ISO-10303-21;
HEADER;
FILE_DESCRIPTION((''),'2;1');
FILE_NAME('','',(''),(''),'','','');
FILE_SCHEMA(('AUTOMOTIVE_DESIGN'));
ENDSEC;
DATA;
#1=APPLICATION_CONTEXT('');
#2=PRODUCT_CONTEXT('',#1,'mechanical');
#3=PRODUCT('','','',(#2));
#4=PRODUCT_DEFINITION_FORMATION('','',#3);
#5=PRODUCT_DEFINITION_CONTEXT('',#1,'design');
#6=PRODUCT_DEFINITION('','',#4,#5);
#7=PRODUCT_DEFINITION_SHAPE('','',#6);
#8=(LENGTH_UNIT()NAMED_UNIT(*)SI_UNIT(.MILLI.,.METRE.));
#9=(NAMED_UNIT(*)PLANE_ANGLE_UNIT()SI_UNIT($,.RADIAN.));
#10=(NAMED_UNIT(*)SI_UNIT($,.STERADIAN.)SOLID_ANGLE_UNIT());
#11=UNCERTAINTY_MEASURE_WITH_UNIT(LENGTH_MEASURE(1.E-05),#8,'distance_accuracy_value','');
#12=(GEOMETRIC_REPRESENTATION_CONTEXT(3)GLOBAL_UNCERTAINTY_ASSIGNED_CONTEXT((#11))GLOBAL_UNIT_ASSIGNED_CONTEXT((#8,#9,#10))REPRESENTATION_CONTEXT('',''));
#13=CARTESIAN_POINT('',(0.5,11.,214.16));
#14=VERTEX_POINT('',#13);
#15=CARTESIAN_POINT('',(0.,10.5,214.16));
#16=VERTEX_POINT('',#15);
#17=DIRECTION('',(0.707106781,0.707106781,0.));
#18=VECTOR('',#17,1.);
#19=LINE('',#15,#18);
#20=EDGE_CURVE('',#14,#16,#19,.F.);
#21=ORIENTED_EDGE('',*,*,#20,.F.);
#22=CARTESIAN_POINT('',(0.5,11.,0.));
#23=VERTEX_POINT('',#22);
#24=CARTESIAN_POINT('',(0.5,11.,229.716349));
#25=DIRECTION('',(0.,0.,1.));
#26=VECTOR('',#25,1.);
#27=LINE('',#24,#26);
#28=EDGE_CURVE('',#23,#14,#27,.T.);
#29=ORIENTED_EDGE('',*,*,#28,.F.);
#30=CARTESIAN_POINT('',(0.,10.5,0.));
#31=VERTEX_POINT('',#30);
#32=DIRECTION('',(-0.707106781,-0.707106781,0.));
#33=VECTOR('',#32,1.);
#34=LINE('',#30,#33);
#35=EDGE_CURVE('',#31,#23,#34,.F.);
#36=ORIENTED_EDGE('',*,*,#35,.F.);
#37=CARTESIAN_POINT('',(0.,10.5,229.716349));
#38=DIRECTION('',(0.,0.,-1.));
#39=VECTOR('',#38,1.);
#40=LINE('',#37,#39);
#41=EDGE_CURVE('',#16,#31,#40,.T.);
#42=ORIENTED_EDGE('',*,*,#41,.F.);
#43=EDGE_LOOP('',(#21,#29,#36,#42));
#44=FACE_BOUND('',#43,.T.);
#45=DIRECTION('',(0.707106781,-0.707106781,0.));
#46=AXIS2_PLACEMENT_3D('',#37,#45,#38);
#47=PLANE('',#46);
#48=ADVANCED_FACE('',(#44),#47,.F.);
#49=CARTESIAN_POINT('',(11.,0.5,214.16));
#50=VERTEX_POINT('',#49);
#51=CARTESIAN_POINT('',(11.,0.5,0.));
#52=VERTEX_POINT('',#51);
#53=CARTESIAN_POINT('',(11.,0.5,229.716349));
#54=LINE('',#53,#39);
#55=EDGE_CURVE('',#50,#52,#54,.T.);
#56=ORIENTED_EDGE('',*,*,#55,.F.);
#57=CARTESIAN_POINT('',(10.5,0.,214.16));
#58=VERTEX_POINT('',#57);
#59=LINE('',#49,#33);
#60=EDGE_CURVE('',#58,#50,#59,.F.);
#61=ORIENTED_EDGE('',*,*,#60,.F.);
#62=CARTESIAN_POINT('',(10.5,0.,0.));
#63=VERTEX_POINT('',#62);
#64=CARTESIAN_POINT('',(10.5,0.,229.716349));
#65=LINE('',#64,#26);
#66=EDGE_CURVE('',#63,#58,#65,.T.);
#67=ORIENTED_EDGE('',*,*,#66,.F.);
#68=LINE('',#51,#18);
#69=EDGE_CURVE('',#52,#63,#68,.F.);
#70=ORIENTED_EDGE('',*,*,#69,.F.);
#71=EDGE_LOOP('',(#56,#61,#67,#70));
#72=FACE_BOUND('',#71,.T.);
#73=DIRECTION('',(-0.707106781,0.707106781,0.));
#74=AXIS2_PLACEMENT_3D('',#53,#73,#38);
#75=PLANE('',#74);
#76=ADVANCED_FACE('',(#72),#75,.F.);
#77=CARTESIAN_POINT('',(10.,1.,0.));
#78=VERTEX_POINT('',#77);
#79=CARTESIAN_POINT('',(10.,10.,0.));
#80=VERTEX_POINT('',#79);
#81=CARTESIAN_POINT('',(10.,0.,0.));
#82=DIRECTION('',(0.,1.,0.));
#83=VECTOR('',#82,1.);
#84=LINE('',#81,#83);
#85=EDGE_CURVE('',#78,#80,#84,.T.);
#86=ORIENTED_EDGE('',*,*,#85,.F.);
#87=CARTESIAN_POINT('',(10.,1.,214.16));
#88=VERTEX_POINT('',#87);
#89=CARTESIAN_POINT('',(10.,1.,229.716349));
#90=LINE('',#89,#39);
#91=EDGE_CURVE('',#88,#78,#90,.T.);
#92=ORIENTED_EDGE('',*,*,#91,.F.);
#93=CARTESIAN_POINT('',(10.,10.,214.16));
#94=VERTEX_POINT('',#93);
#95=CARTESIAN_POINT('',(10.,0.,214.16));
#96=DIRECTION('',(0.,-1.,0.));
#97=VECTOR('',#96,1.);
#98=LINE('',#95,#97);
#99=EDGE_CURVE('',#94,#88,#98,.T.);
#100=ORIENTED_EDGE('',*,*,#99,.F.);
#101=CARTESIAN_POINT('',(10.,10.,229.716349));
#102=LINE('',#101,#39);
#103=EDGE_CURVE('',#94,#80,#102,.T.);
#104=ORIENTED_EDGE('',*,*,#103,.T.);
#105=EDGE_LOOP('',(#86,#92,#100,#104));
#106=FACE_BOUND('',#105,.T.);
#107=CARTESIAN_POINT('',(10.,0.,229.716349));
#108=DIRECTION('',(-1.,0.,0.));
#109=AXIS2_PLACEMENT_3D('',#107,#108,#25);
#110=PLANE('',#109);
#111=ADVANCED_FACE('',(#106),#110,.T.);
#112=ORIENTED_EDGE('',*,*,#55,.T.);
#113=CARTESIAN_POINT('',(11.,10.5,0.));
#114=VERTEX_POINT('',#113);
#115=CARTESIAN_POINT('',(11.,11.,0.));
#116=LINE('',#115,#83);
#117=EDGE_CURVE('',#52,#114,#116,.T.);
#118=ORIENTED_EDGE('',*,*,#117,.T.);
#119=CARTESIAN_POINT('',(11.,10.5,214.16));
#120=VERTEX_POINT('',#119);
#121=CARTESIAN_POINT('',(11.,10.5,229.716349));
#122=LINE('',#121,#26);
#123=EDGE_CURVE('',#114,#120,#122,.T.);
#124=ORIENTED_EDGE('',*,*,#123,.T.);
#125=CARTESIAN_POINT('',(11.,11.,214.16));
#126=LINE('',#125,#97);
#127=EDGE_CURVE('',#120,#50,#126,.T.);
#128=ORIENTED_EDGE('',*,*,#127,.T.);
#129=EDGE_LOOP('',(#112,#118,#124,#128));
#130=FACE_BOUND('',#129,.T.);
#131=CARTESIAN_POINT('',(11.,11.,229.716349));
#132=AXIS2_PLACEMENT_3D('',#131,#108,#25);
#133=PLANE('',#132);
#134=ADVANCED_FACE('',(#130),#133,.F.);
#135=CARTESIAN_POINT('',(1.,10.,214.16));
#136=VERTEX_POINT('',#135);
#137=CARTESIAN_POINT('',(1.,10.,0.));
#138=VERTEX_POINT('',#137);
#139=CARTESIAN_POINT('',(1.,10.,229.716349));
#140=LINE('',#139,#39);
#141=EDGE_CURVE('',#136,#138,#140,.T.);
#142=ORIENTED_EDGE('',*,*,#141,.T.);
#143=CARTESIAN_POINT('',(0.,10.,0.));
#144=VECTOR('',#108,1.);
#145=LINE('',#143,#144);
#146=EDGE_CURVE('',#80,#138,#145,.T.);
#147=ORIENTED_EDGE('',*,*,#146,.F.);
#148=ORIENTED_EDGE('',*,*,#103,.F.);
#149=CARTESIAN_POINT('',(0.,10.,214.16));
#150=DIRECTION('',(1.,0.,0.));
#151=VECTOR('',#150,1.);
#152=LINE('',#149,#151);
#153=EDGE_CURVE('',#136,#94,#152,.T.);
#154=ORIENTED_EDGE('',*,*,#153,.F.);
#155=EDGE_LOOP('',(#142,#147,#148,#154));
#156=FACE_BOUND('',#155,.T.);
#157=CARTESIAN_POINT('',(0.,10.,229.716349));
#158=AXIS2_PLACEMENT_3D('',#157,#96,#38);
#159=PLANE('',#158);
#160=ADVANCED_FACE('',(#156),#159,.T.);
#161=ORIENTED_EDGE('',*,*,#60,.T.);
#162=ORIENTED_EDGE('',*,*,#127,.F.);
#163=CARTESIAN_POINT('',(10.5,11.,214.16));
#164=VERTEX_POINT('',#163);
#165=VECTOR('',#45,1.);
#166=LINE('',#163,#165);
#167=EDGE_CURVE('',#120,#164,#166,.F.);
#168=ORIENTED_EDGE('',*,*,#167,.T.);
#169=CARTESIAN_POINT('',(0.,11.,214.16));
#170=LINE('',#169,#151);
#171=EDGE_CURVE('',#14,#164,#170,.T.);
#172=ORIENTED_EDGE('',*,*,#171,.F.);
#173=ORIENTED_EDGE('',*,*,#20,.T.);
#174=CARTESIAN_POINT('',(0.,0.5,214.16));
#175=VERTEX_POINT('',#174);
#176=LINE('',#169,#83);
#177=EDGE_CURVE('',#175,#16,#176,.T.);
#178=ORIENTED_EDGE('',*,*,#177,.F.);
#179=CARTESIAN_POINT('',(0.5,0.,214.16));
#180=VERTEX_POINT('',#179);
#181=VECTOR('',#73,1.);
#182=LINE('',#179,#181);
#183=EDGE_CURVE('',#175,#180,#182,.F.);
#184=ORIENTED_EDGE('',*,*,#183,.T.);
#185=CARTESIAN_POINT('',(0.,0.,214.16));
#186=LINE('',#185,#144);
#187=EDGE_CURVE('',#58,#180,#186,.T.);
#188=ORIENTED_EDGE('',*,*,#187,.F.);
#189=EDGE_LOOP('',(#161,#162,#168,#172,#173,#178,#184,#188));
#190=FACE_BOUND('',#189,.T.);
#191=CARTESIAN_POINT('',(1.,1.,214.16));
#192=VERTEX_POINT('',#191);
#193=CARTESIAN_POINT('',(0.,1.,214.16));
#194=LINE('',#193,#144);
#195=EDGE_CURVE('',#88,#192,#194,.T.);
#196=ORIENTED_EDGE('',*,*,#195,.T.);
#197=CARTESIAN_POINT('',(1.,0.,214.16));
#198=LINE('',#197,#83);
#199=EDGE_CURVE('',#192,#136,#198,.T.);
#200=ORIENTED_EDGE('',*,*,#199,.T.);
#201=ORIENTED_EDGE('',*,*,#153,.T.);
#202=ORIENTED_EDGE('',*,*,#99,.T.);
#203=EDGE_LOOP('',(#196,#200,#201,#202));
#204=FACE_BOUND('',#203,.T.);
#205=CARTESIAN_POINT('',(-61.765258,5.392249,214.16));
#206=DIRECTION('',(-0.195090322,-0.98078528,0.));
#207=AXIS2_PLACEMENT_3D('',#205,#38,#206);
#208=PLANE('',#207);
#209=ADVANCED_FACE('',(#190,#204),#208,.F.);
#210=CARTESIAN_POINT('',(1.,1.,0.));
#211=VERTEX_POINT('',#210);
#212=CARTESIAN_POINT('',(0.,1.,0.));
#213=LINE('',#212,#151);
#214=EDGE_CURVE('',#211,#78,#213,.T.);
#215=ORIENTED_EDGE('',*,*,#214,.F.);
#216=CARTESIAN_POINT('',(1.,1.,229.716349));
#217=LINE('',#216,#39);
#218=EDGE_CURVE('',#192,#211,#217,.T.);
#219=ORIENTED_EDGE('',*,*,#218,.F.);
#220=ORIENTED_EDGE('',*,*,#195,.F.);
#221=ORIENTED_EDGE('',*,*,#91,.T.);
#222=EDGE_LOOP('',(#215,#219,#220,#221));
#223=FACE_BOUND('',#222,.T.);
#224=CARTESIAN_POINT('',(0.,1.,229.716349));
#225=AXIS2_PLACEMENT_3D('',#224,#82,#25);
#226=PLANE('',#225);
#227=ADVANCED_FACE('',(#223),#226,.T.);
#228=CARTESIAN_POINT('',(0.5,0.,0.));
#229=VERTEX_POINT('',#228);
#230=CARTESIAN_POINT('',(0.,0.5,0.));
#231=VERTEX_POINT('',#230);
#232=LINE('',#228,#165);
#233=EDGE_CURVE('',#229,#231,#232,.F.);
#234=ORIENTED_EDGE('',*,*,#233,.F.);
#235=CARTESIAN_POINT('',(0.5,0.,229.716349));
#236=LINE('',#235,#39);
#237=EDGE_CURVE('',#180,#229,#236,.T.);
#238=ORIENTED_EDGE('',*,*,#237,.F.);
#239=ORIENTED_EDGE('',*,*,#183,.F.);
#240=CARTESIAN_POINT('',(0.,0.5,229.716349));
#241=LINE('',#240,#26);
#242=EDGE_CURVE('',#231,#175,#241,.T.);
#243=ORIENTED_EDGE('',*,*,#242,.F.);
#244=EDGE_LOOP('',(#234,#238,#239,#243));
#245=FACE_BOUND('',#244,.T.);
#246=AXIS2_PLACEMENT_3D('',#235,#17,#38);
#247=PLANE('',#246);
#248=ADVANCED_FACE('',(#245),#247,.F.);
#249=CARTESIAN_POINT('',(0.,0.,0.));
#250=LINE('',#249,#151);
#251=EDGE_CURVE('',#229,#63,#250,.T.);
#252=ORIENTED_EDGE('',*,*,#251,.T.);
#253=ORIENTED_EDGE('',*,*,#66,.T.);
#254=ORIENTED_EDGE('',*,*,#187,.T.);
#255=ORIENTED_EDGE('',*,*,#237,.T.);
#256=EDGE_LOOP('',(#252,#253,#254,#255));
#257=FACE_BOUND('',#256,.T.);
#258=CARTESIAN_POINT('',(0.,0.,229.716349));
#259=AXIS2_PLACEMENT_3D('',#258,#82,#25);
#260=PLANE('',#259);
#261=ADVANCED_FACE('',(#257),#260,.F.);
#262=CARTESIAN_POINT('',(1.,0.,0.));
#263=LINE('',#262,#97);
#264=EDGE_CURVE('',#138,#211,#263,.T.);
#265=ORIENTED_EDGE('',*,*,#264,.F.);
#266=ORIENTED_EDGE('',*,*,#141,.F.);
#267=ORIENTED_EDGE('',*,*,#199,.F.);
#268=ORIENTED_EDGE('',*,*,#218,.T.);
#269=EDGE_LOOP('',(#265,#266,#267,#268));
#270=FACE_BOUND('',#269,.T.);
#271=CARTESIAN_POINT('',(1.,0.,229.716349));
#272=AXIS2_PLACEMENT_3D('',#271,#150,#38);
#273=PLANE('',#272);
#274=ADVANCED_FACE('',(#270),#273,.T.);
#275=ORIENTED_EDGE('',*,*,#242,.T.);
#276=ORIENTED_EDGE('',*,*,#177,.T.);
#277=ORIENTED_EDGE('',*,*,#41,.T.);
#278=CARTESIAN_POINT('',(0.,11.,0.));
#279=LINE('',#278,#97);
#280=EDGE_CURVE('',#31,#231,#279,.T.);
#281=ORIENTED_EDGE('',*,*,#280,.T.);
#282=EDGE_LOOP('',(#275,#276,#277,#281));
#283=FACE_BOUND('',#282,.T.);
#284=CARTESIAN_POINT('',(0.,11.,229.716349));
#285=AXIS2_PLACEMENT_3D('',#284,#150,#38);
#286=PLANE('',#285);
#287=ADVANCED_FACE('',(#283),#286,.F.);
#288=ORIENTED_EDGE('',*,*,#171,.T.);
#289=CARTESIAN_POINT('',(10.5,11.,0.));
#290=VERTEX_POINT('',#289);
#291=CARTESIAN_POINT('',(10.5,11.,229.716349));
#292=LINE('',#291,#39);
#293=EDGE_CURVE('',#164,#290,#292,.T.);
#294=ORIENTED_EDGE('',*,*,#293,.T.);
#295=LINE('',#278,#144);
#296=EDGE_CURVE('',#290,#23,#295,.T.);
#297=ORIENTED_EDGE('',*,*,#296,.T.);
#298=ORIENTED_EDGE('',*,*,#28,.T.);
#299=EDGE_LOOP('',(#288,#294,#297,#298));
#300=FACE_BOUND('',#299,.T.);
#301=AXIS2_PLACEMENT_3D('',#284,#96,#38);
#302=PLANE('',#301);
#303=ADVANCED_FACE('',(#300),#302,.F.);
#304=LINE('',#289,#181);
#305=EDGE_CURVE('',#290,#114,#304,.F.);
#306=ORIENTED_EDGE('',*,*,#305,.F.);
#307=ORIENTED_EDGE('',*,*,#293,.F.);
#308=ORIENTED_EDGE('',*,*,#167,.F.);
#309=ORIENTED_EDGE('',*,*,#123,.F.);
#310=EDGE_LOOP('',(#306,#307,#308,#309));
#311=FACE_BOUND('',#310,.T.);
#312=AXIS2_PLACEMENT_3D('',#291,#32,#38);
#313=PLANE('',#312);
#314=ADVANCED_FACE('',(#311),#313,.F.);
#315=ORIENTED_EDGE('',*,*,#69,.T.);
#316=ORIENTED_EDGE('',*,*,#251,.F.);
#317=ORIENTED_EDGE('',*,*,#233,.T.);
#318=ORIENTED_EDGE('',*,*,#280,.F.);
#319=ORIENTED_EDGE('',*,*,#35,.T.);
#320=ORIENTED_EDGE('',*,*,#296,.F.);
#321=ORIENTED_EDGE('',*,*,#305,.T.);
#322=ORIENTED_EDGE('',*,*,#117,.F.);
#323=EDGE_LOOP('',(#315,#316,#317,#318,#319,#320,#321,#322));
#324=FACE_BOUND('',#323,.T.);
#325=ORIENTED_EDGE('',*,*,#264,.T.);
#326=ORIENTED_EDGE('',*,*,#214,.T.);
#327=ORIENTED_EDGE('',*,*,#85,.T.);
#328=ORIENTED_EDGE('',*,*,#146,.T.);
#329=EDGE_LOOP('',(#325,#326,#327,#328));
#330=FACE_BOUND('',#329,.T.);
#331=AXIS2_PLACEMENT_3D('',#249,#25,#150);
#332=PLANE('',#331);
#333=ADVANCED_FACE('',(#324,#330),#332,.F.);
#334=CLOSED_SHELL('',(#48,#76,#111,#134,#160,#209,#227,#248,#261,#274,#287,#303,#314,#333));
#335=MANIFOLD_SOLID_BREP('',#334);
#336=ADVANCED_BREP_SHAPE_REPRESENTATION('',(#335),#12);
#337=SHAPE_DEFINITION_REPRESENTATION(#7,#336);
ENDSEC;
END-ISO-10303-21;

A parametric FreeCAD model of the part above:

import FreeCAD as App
import Part
import Sketcher
Q = App.Units.Quantity


def edges_at(feature, points):
    """Names of the edges that pass closest to the given points."""
    edges = feature.Shape.Edges
    near = lambda p: min(range(len(edges)), key=lambda i: edges[i].distToShape(Part.Vertex(*p))[0])
    return sorted({f"Edge{near(p) + 1}" for p in points})


def add_polygon(sketch, points):
    """Adds a closed chain of lines whose ends are joined by coincident constraints."""
    first, n = sketch.GeometryCount, len(points)
    for a, b in zip(points, points[1:] + points[:1]):
        sketch.addGeometry(Part.LineSegment(App.Vector(*a, 0), App.Vector(*b, 0)), False)
    for i in range(n):
        sketch.addConstraint(Sketcher.Constraint("Coincident", first + i, 2, first + (i + 1) % n, 1))

doc = App.newDocument("Part")
body = doc.addObject("PartDesign::Body", "Body")

sketch1 = body.newObject("Sketcher::SketchObject", "Sketch")
sketch1.AttachmentSupport = (doc.getObject("XY_Plane"), [""])
sketch1.MapMode = "FlatFace"
add_polygon(sketch1, [(0, 11), (0, 0), (11, 0), (11, 11)])
add_polygon(sketch1, [(10, 1), (1, 1), (1, 10), (10, 10)])
sketch1.addConstraint([
    Sketcher.Constraint("Vertical", 0),
    Sketcher.Constraint("Horizontal", 1),
    Sketcher.Constraint("Vertical", 2),
    Sketcher.Constraint("Horizontal", 3),
    Sketcher.Constraint("Horizontal", 4),
    Sketcher.Constraint("Vertical", 5),
    Sketcher.Constraint("Horizontal", 6),
    Sketcher.Constraint("Vertical", 7),
    Sketcher.Constraint("Coincident", 0, 2, -1, 1),
    Sketcher.Constraint("Equal", 3, 0),
    Sketcher.Constraint("Equal", 6, 5),
    Sketcher.Constraint("DistanceX", 1, 1, 1, 2, Q("11 mm")),
    Sketcher.Constraint("DistanceX", 4, 2, 4, 1, Q("9 mm")),
    Sketcher.Constraint("DistanceX", -1, 1, 4, 2, Q("1 mm")),
    Sketcher.Constraint("DistanceY", -1, 1, 4, 2, Q("1 mm")),
])
pad1 = body.newObject("PartDesign::Pad", "Pad")
pad1.Profile = sketch1
pad1.Length = 214.16
doc.recompute()

chamfer = body.newObject("PartDesign::Chamfer", "Chamfer")
chamfer.Base = (pad1, edges_at(pad1, [
    (11, 11, 107.08),
    (0, 11, 107.08),
    (0, 0, 107.08),
    (11, 0, 107.08),
]))
chamfer.Size = 0.5

doc.recompute()
